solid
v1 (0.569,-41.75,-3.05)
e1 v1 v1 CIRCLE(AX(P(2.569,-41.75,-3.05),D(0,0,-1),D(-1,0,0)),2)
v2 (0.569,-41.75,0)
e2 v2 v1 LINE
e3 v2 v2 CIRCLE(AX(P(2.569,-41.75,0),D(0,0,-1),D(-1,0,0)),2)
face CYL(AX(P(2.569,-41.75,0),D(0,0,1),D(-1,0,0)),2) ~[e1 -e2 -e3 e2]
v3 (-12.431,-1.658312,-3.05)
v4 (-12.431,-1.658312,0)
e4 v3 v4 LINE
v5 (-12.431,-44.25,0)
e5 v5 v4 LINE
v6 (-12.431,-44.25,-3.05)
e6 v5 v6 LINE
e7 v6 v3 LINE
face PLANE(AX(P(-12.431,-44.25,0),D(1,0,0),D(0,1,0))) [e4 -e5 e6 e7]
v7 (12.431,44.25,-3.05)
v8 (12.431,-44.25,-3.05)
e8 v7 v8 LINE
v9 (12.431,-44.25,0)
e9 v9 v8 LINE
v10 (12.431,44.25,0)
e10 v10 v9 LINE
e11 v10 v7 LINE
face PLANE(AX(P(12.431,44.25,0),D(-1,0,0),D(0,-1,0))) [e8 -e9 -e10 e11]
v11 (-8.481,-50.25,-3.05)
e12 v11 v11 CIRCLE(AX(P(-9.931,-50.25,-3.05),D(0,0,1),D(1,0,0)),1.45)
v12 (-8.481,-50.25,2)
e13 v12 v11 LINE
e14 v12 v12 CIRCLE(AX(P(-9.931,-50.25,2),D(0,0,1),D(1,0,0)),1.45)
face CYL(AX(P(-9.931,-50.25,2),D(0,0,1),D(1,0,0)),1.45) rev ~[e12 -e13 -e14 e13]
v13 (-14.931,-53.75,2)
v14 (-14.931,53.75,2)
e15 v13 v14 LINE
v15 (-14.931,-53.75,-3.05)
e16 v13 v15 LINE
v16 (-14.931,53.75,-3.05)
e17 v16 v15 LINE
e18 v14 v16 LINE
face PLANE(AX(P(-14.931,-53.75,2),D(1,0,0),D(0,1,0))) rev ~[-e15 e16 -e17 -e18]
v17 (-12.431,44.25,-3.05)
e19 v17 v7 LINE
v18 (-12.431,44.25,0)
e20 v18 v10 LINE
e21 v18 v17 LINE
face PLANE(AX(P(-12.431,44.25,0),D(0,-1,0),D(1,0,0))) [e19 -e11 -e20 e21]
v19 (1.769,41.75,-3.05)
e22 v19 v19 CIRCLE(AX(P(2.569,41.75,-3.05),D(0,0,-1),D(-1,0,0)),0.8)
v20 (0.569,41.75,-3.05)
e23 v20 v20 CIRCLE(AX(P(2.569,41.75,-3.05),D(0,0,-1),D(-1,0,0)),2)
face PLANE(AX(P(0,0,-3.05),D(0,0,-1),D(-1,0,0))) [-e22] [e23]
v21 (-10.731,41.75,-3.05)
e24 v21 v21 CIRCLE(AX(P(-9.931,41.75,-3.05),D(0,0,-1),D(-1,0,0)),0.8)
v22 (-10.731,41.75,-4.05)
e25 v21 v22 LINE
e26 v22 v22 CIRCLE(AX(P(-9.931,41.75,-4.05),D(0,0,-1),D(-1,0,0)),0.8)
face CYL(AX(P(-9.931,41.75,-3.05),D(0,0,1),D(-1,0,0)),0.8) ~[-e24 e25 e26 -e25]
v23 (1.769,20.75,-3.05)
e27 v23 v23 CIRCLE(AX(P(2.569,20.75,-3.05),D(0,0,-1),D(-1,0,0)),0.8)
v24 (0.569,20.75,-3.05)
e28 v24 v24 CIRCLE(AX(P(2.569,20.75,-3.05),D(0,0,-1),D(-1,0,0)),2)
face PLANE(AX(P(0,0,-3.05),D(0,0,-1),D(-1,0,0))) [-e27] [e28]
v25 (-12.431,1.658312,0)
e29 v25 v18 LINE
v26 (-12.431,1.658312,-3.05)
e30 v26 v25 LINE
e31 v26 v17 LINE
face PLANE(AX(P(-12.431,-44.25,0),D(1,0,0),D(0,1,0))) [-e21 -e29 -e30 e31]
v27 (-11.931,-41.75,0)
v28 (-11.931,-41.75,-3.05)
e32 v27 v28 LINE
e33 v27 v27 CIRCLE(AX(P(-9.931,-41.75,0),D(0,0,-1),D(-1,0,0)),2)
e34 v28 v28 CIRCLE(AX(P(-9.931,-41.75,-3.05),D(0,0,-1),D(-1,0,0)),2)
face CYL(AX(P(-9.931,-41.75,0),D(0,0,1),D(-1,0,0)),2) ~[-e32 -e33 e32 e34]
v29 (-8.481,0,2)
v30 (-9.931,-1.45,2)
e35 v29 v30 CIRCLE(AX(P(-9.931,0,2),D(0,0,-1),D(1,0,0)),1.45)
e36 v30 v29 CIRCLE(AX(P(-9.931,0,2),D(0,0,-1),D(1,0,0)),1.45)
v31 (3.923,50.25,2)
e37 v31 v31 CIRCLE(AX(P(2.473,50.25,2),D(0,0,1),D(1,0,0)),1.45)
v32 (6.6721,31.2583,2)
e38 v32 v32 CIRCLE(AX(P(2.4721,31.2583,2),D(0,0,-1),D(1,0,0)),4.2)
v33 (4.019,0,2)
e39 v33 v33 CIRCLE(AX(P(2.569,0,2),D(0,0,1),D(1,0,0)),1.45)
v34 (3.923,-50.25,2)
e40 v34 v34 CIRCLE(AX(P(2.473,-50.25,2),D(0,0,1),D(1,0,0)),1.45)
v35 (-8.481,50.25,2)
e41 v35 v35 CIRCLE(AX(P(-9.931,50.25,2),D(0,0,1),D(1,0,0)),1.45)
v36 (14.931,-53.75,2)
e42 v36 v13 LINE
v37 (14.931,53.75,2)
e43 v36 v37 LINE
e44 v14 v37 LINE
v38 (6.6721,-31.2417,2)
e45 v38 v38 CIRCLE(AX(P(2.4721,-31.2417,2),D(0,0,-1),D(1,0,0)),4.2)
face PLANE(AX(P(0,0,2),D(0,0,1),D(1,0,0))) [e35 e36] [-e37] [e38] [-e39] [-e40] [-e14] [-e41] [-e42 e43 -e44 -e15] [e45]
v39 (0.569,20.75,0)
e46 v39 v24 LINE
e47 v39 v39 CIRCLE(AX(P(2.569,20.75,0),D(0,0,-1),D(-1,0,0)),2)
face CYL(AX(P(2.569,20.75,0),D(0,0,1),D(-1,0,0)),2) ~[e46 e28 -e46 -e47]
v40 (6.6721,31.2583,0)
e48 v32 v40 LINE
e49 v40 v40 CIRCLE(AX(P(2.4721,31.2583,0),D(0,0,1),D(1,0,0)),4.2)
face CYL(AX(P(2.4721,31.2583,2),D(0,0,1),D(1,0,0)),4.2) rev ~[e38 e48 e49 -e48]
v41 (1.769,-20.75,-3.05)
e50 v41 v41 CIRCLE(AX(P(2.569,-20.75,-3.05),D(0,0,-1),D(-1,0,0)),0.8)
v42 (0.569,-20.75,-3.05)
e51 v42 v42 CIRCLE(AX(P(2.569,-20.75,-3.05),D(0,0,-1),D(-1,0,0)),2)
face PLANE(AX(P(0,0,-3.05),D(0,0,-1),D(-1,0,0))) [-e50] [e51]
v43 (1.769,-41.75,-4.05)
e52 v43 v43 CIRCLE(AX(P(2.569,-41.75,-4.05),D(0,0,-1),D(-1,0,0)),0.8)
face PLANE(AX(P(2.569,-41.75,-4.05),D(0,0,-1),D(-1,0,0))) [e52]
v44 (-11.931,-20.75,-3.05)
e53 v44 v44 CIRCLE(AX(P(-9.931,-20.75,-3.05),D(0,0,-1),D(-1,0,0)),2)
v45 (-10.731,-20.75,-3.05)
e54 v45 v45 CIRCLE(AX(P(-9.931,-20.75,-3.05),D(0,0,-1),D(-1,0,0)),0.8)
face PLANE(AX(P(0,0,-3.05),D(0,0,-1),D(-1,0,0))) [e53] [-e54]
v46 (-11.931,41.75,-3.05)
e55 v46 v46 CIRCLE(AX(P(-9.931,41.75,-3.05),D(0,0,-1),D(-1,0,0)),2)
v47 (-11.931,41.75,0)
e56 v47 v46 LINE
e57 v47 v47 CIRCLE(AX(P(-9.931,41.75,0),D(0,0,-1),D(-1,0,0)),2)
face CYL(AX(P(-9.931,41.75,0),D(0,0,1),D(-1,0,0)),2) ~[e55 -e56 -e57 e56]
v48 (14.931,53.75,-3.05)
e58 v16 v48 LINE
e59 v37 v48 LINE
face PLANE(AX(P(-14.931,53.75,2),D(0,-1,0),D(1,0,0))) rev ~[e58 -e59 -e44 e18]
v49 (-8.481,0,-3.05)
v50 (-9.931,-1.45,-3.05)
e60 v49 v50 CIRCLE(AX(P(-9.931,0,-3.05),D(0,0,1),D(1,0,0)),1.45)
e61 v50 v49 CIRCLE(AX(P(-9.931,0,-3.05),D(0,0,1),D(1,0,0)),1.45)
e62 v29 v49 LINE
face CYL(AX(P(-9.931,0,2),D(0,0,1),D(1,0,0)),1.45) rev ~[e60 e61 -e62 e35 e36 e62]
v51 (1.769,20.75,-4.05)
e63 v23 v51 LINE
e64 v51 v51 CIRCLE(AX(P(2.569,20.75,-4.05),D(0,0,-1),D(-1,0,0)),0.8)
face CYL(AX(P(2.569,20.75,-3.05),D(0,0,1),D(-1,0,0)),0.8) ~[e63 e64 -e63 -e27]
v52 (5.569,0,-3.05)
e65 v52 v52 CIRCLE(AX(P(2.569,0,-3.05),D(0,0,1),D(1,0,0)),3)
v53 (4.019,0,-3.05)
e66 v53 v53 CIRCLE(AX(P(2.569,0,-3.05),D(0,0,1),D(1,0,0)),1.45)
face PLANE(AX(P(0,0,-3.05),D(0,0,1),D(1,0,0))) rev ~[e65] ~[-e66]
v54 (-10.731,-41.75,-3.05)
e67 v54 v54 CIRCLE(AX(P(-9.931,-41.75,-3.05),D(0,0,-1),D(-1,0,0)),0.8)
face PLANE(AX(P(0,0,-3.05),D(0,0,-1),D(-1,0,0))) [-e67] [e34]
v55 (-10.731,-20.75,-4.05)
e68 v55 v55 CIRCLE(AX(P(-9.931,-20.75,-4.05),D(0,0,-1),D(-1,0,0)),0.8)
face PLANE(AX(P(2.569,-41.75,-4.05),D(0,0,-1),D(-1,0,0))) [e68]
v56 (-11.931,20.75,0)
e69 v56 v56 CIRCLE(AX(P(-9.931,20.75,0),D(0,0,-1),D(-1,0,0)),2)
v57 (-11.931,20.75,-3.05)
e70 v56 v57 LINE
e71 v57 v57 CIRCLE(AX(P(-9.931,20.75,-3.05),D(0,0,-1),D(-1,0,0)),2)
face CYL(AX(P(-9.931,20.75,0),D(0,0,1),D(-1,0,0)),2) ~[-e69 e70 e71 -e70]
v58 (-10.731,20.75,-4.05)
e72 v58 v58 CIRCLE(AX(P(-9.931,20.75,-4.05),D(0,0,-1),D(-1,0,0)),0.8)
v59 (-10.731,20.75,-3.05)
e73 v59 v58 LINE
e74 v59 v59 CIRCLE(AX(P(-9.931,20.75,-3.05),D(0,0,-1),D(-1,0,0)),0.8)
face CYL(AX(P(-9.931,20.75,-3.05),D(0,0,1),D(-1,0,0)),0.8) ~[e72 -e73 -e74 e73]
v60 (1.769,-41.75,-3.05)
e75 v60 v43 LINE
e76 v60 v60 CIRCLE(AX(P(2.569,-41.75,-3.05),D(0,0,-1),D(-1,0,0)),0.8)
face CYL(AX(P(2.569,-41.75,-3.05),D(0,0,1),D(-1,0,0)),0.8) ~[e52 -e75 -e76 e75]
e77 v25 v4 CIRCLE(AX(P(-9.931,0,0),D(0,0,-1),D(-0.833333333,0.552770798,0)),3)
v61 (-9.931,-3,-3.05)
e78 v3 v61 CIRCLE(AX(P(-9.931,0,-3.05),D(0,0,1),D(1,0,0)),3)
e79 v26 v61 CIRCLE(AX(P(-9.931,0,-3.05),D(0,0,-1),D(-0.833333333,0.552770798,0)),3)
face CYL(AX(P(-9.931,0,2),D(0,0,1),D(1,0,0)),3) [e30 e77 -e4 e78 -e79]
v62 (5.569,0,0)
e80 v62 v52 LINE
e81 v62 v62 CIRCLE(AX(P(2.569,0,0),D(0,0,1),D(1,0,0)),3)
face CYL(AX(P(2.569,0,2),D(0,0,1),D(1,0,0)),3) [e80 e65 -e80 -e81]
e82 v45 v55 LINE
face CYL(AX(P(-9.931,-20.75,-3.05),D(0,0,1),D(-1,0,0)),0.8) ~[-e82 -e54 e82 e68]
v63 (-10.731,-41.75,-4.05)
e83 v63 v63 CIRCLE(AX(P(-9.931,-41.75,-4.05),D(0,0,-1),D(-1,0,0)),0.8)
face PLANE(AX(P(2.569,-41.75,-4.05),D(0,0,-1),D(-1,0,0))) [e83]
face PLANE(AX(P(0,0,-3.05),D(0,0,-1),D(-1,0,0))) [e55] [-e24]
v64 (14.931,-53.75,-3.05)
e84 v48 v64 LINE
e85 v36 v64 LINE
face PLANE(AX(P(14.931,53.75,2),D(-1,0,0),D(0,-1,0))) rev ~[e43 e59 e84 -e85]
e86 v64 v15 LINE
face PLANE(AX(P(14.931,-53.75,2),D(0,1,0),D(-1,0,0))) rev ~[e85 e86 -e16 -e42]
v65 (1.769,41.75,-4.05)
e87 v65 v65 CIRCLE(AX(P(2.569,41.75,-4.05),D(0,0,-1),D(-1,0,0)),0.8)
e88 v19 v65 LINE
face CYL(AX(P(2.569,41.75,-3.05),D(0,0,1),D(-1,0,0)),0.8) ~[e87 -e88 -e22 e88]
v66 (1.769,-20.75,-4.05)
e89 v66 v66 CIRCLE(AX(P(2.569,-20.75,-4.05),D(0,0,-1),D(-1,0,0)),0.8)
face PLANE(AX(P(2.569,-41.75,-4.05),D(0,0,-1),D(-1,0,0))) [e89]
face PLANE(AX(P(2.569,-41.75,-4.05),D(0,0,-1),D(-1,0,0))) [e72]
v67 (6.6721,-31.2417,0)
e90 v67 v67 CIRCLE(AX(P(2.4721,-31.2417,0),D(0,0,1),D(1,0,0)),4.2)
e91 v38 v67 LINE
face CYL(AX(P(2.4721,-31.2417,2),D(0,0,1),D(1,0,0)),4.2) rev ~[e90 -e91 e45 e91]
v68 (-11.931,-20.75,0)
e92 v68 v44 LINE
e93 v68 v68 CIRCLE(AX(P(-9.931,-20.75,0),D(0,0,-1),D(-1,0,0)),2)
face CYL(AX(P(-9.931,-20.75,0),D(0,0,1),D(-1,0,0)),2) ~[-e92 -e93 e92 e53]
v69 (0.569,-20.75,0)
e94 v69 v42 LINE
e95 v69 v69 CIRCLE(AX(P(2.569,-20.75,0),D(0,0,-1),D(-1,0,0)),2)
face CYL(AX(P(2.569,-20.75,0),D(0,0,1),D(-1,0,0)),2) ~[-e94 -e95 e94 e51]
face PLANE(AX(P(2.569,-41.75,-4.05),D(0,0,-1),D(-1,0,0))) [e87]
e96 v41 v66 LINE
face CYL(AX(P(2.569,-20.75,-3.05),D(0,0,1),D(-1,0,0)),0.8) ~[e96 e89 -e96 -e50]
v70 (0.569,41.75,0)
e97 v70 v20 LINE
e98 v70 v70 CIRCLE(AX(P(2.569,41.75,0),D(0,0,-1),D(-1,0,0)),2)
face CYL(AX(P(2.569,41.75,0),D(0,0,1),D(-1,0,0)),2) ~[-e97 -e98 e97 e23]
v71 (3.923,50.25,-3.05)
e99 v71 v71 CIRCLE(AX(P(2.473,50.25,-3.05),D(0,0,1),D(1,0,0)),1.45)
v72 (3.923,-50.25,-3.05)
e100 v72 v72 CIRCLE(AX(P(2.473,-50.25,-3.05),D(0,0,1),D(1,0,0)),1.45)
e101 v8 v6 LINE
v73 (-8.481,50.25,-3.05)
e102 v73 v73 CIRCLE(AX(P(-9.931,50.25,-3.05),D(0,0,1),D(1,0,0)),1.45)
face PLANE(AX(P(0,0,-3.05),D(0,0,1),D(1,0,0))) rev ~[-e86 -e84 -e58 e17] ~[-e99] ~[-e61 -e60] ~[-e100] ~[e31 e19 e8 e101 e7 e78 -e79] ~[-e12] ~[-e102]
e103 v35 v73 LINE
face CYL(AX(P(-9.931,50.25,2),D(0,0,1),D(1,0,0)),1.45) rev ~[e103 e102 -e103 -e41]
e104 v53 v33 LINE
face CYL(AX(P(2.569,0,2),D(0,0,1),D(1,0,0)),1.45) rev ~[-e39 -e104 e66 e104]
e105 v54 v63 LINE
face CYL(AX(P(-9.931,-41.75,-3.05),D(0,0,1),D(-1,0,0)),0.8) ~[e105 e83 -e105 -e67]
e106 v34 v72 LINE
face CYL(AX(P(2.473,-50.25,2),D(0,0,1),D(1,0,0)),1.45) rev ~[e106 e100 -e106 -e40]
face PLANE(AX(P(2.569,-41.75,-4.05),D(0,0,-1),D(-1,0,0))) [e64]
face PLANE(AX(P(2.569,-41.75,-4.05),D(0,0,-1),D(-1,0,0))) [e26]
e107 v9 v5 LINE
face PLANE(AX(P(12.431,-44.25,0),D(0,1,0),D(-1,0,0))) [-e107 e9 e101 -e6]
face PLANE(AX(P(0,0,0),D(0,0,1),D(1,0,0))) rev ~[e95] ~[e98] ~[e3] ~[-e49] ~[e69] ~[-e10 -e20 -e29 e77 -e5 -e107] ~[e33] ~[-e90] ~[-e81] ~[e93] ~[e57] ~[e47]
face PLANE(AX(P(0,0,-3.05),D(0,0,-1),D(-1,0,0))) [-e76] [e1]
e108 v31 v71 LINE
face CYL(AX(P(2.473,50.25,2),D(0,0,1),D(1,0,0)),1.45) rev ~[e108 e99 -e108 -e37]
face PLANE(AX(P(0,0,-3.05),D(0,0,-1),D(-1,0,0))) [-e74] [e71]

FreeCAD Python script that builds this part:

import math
import FreeCAD as App
import Part
import Sketcher

V = App.Vector
Q = App.Units.Quantity

doc = App.newDocument("Part")
body = doc.addObject("PartDesign::Body", "Body")

# Sketch on XY plane
sketch1 = doc.addObject("Sketcher::SketchObject", "Sketch")
body.addObject(sketch1)
sketch1.AttachmentSupport = (doc.XY_Plane, [""])
sketch1.MapMode = "FlatFace"
sketch1.addGeometry([
    Part.LineSegment(V(14.9, 46.8, 0), V(-14.9, 46.8, 0)),  # 0
    Part.LineSegment(V(-14.9, 46.8, 0), V(-14.9, -46.8, 0)),  # 1
    Part.LineSegment(V(-14.9, -46.8, 0), V(14.9, -46.8, 0)),  # 2
    Part.LineSegment(V(14.9, -46.8, 0), V(14.9, 46.8, 0)),  # 3
    Part.Circle(V(-9.9, -41.8, 0), V(0, 0, 1), 1.1),  # 4
    Part.Circle(V(-9.9, -20.8, 0), V(0, 0, 1), 1.1),  # 5
    Part.Circle(V(2.6, -41.8, 0), V(0, 0, 1), 1.1),  # 6
    Part.LineSegment(V(-1.5, -27.2, 0), V(6.5, -27.2, 0)),  # 7
    Part.LineSegment(V(6.5, -27.2, 0), V(6.5, -35.2, 0)),  # 8
    Part.LineSegment(V(6.5, -35.2, 0), V(-1.5, -35.2, 0)),  # 9
    Part.LineSegment(V(-1.5, -35.2, 0), V(-1.5, -27.2, 0)),  # 10
    Part.Circle(V(2.6, -20.8, 0), V(0, 0, 1), 1.1),  # 11
    Part.Circle(V(-9.9, 20.8, 0), V(0, 0, 1), 1.1),  # 12
    Part.Circle(V(-9.9, 41.8, 0), V(0, 0, 1), 1.1),  # 13
    Part.Circle(V(2.6, 20.8, 0), V(0, 0, 1), 1.1),  # 14
    Part.LineSegment(V(-1.5, 35.3, 0), V(6.5, 35.3, 0)),  # 15
    Part.LineSegment(V(6.5, 35.3, 0), V(6.5, 27.3, 0)),  # 16
    Part.LineSegment(V(6.5, 27.3, 0), V(-1.5, 27.3, 0)),  # 17
    Part.LineSegment(V(-1.5, 27.3, 0), V(-1.5, 35.3, 0)),  # 18
    Part.Circle(V(2.6, 41.8, 0), V(0, 0, 1), 1.1),  # 19
], False)
sketch1.addConstraint([
    Sketcher.Constraint("Coincident", 0, 2, 1, 1),
    Sketcher.Constraint("Coincident", 1, 2, 2, 1),
    Sketcher.Constraint("Coincident", 2, 2, 3, 1),
    Sketcher.Constraint("Coincident", 3, 2, 0, 1),
    Sketcher.Constraint("Coincident", 7, 2, 8, 1),
    Sketcher.Constraint("Coincident", 8, 2, 9, 1),
    Sketcher.Constraint("Coincident", 9, 2, 10, 1),
    Sketcher.Constraint("Coincident", 10, 2, 7, 1),
    Sketcher.Constraint("Coincident", 15, 2, 16, 1),
    Sketcher.Constraint("Coincident", 16, 2, 17, 1),
    Sketcher.Constraint("Coincident", 17, 2, 18, 1),
    Sketcher.Constraint("Coincident", 18, 2, 15, 1),
    Sketcher.Constraint("Horizontal", 0),
    Sketcher.Constraint("Vertical", 1),
    Sketcher.Constraint("Horizontal", 2),
    Sketcher.Constraint("Vertical", 3),
    Sketcher.Constraint("Horizontal", 7),
    Sketcher.Constraint("Vertical", 8),
    Sketcher.Constraint("Horizontal", 9),
    Sketcher.Constraint("Vertical", 10),
    Sketcher.Constraint("Horizontal", 15),
    Sketcher.Constraint("Vertical", 16),
    Sketcher.Constraint("Horizontal", 17),
    Sketcher.Constraint("Vertical", 18),
    Sketcher.Constraint("Equal", 4, 5),
    Sketcher.Constraint("Equal", 5, 6),
    Sketcher.Constraint("Equal", 6, 11),
    Sketcher.Constraint("Equal", 11, 12),
    Sketcher.Constraint("Equal", 12, 13),
    Sketcher.Constraint("Equal", 13, 14),
    Sketcher.Constraint("Equal", 14, 19),
    Sketcher.Constraint("Symmetric", 0, 2, 2, 2, -1, 1),
    Sketcher.Constraint("Symmetric", 5, 3, 12, 3, -1),
    Sketcher.Constraint("Symmetric", 4, 3, 13, 3, -1),
    Sketcher.Constraint("Symmetric", 11, 3, 14, 3, -1),
    Sketcher.Constraint("Symmetric", 6, 3, 19, 3, -1),
    Sketcher.Constraint("Horizontal", 4, 3, 6, 3),
    Sketcher.Constraint("Horizontal", 5, 3, 11, 3),
    Sketcher.Constraint("Vertical", 4, 3, 5, 3),
    Sketcher.Constraint("Vertical", 6, 3, 11, 3),
    Sketcher.Constraint("Vertical", 8, 2, 15, 2),
    Sketcher.Constraint("Vertical", 10, 2, 17, 2),
    Sketcher.Constraint("Equal", 17, 8),
    Sketcher.Constraint("Equal", 10, 16),
    Sketcher.Constraint("Diameter", 4, Q("2.2 mm")),
    Sketcher.Constraint("DistanceX", 7, 1, 7, 2, Q("8 mm")),
    Sketcher.Constraint("DistanceY", 1, 2, 1, 1, Q("93.5 mm")),
    Sketcher.Constraint("DistanceY", 4, 3, 5, 3, Q("21 mm")),
    Sketcher.Constraint("DistanceX", 0, 2, 13, 3, Q("5 mm")),
    Sketcher.Constraint("DistanceY", 13, 3, 0, 2, Q("5 mm")),
    Sketcher.Constraint("DistanceX", 4, 3, 6, 3, Q("12.5 mm")),
    Sketcher.Constraint("DistanceX", 0, 2, 0, 1, Q("29.862 mm")),
    Sketcher.Constraint("DistanceX", -1, 1, 7, 2, Q("6.472 mm")),
    Sketcher.Constraint("DistanceY", 7, 2, -1, 1, Q("27.2417 mm")),
    Sketcher.Constraint("DistanceY", -1, 1, 15, 2, Q("35.2583 mm")),
])
pad1 = doc.addObject("PartDesign::Pad", "Pad")
body.addObject(pad1)
pad1.Profile = sketch1
pad1.Length = 2

# Sketch on XY plane
sketch2 = doc.addObject("Sketcher::SketchObject", "Sketch001")
body.addObject(sketch2)
sketch2.AttachmentSupport = (doc.XY_Plane, [""])
sketch2.MapMode = "FlatFace"
sketch2.AttachmentOffset = App.Placement(V(0, 0, 2), App.Rotation())
sketch2.addGeometry([
    Part.LineSegment(V(6.67, 27.06, 0), V(6.67, 27.26, 0)),  # 0
    Part.LineSegment(V(6.67, 27.26, 0), V(6.67, 35.46, 0)),  # 1
    Part.LineSegment(V(6.67, 35.46, 0), V(-1.73, 35.46, 0)),  # 2
    Part.LineSegment(V(-1.73, 35.46, 0), V(-1.73, 27.06, 0)),  # 3
    Part.LineSegment(V(-1.73, 27.06, 0), V(6.67, 27.06, 0)),  # 4
    Part.LineSegment(V(6.47, 27.26, 0), V(-1.53, 27.26, 0)),  # 5
    Part.LineSegment(V(-1.53, 27.26, 0), V(-1.53, 35.26, 0)),  # 6
    Part.LineSegment(V(-1.53, 35.26, 0), V(6.47, 35.26, 0)),  # 7
    Part.LineSegment(V(6.47, 35.26, 0), V(6.47, 27.26, 0)),  # 8
    Part.LineSegment(V(-1.73, -35.44, 0), V(-1.53, -35.44, 0)),  # 9
    Part.LineSegment(V(-1.53, -35.44, 0), V(6.67, -35.44, 0)),  # 10
    Part.LineSegment(V(6.67, -35.44, 0), V(6.67, -27.04, 0)),  # 11
    Part.LineSegment(V(6.67, -27.04, 0), V(-1.73, -27.04, 0)),  # 12
    Part.LineSegment(V(-1.73, -27.04, 0), V(-1.73, -35.44, 0)),  # 13
    Part.LineSegment(V(-1.53, -35.24, 0), V(-1.53, -27.24, 0)),  # 14
    Part.LineSegment(V(-1.53, -27.24, 0), V(6.47, -27.24, 0)),  # 15
    Part.LineSegment(V(6.47, -27.24, 0), V(6.47, -35.24, 0)),  # 16
    Part.LineSegment(V(6.47, -35.24, 0), V(-1.53, -35.24, 0)),  # 17
], False)
sketch2.addConstraint([
    Sketcher.Constraint("Coincident", 0, 2, 1, 1),
    Sketcher.Constraint("Coincident", 1, 2, 2, 1),
    Sketcher.Constraint("Coincident", 2, 2, 3, 1),
    Sketcher.Constraint("Coincident", 3, 2, 4, 1),
    Sketcher.Constraint("Coincident", 4, 2, 0, 1),
    Sketcher.Constraint("Coincident", 5, 2, 6, 1),
    Sketcher.Constraint("Coincident", 6, 2, 7, 1),
    Sketcher.Constraint("Coincident", 7, 2, 8, 1),
    Sketcher.Constraint("Coincident", 8, 2, 5, 1),
    Sketcher.Constraint("Coincident", 9, 2, 10, 1),
    Sketcher.Constraint("Coincident", 10, 2, 11, 1),
    Sketcher.Constraint("Coincident", 11, 2, 12, 1),
    Sketcher.Constraint("Coincident", 12, 2, 13, 1),
    Sketcher.Constraint("Coincident", 13, 2, 9, 1),
    Sketcher.Constraint("Coincident", 14, 2, 15, 1),
    Sketcher.Constraint("Coincident", 15, 2, 16, 1),
    Sketcher.Constraint("Coincident", 16, 2, 17, 1),
    Sketcher.Constraint("Coincident", 17, 2, 14, 1),
    Sketcher.Constraint("Vertical", 0),
    Sketcher.Constraint("Vertical", 1),
    Sketcher.Constraint("Horizontal", 2),
    Sketcher.Constraint("Vertical", 3),
    Sketcher.Constraint("Horizontal", 4),
    Sketcher.Constraint("Horizontal", 5),
    Sketcher.Constraint("Vertical", 6),
    Sketcher.Constraint("Horizontal", 7),
    Sketcher.Constraint("Vertical", 8),
    Sketcher.Constraint("Horizontal", 9),
    Sketcher.Constraint("Horizontal", 10),
    Sketcher.Constraint("Vertical", 11),
    Sketcher.Constraint("Horizontal", 12),
    Sketcher.Constraint("Vertical", 13),
    Sketcher.Constraint("Vertical", 14),
    Sketcher.Constraint("Horizontal", 15),
    Sketcher.Constraint("Vertical", 16),
    Sketcher.Constraint("Horizontal", 17),
    Sketcher.Constraint("Horizontal", 0, 2, 5, 2),
    Sketcher.Constraint("Vertical", 6, 2, 9, 2),
    Sketcher.Constraint("Vertical", 4, 2, 10, 2),
    Sketcher.Constraint("Vertical", 3, 2, 12, 2),
    Sketcher.Constraint("Vertical", 9, 2, 14, 2),
    Sketcher.Constraint("Vertical", 8, 2, 15, 2),
    Sketcher.Constraint("Equal", 9, 0),
    Sketcher.Constraint("Equal", 10, 1),
    Sketcher.Constraint("Equal", 17, 6),
    Sketcher.Constraint("Equal", 3, 11),
    Sketcher.Constraint("Equal", 8, 14),
    Sketcher.Constraint("DistanceX", 9, 1, 9, 2, Q("0.2 mm")),
    Sketcher.Constraint("DistanceY", 6, 2, 2, 2, Q("0.2 mm")),
    Sketcher.Constraint("DistanceY", 14, 2, 12, 2, Q("0.2 mm")),
    Sketcher.Constraint("DistanceX", 5, 2, 5, 1, Q("8 mm")),
    Sketcher.Constraint("DistanceY", 9, 2, 3, 2, Q("62.5 mm")),
    Sketcher.Constraint("DistanceX", -1, 1, 0, 2, Q("6.672 mm")),
    Sketcher.Constraint("DistanceY", -1, 1, 0, 2, Q("27.2583 mm")),
])
pocket1 = doc.addObject("PartDesign::Pocket", "Pocket")
body.addObject(pocket1)
pocket1.Profile = sketch2
pocket1.Type = "ThroughAll"

# Sketch on XY plane
sketch3 = doc.addObject("Sketcher::SketchObject", "Sketch002")
body.addObject(sketch3)
sketch3.AttachmentSupport = (doc.XY_Plane, [""])
sketch3.MapMode = "FlatFace"
sketch3.addGeometry([
    Part.LineSegment(V(-15, -47, 0), V(-15, 47, 0)),  # 0
    Part.LineSegment(V(-15, 47, 0), V(15, 47, 0)),  # 1
    Part.LineSegment(V(15, 47, 0), V(15, -47, 0)),  # 2
    Part.LineSegment(V(15, -47, 0), V(-15, -47, 0)),  # 3
    Part.LineSegment(V(12, 44, 0), V(-12, 44, 0)),  # 4
    Part.LineSegment(V(-12, 44, 0), V(-12, -44, 0)),  # 5
    Part.LineSegment(V(-12, -44, 0), V(12, -44, 0)),  # 6
    Part.LineSegment(V(12, -44, 0), V(12, 44, 0)),  # 7
], False)
sketch3.addConstraint([
    Sketcher.Constraint("Coincident", 0, 2, 1, 1),
    Sketcher.Constraint("Coincident", 1, 2, 2, 1),
    Sketcher.Constraint("Coincident", 2, 2, 3, 1),
    Sketcher.Constraint("Coincident", 3, 2, 0, 1),
    Sketcher.Constraint("Coincident", 4, 2, 5, 1),
    Sketcher.Constraint("Coincident", 5, 2, 6, 1),
    Sketcher.Constraint("Coincident", 6, 2, 7, 1),
    Sketcher.Constraint("Coincident", 7, 2, 4, 1),
    Sketcher.Constraint("Vertical", 0),
    Sketcher.Constraint("Horizontal", 1),
    Sketcher.Constraint("Vertical", 2),
    Sketcher.Constraint("Horizontal", 3),
    Sketcher.Constraint("Horizontal", 4),
    Sketcher.Constraint("Vertical", 5),
    Sketcher.Constraint("Horizontal", 6),
    Sketcher.Constraint("Vertical", 7),
    Sketcher.Constraint("Symmetric", 0, 2, 2, 2, -1, 1),
    Sketcher.Constraint("Symmetric", 4, 2, 6, 2, -1, 1),
    Sketcher.Constraint("DistanceY", 0, 1, 0, 2, Q("93.5 mm")),
    Sketcher.Constraint("DistanceY", 5, 2, 5, 1, Q("88.5 mm")),
    Sketcher.Constraint("DistanceX", 0, 2, 4, 2, Q("2.5 mm")),
    Sketcher.Constraint("DistanceX", 1, 1, 1, 2, Q("29.862 mm")),
])
pad2 = doc.addObject("PartDesign::Pad", "Pad001")
body.addObject(pad2)
pad2.Profile = sketch3
pad2.Length = 3.05
pad2.Reversed = True

# Sketch on XY plane
sketch4 = doc.addObject("Sketcher::SketchObject", "Sketch003")
body.addObject(sketch4)
sketch4.AttachmentSupport = (doc.XY_Plane, [""])
sketch4.MapMode = "FlatFace"
sketch4.AttachmentOffset = App.Placement(V(0, 0, 2), App.Rotation())
sketch4.addGeometry([
    Part.LineSegment(V(2.5, -35.4, 0), V(6.7, -35.4, 0)),  # 0
    Part.LineSegment(V(6.7, -35.4, 0), V(6.7, -31.2, 0)),  # 1
    Part.ArcOfCircle(Part.Circle(V(2.5, -31.2, 0), V(0, 0, 1), 4.2), math.radians(-90), math.radians(0)),  # 2
    Part.LineSegment(V(-1.7, -35.4, 0), V(2.5, -35.4, 0)),  # 3
    Part.ArcOfCircle(Part.Circle(V(2.5, -31.2, 0), V(0, 0, 1), 4.2), math.radians(180), math.radians(270)),  # 4
    Part.LineSegment(V(-1.7, -31.2, 0), V(-1.7, -35.4, 0)),  # 5
    Part.ArcOfCircle(Part.Circle(V(2.5, -31.2, 0), V(0, 0, 1), 4.2), math.radians(0), math.radians(90)),  # 6
    Part.LineSegment(V(6.7, -31.2, 0), V(6.7, -27, 0)),  # 7
    Part.LineSegment(V(6.7, -27, 0), V(2.5, -27, 0)),  # 8
    Part.LineSegment(V(-1.7, -27, 0), V(-1.7, -31.2, 0)),  # 9
    Part.ArcOfCircle(Part.Circle(V(2.5, -31.2, 0), V(0, 0, 1), 4.2), math.radians(90), math.radians(180)),  # 10
    Part.LineSegment(V(2.5, -27, 0), V(-1.7, -27, 0)),  # 11
    Part.LineSegment(V(-1.7, 31.3, 0), V(-1.7, 27.1, 0)),  # 12
    Part.LineSegment(V(-1.7, 27.1, 0), V(2.5, 27.1, 0)),  # 13
    Part.ArcOfCircle(Part.Circle(V(2.5, 31.3, 0), V(0, 0, 1), 4.2), math.radians(180), math.radians(270)),  # 14
    Part.LineSegment(V(-1.7, 35.5, 0), V(-1.7, 31.3, 0)),  # 15
    Part.ArcOfCircle(Part.Circle(V(2.5, 31.3, 0), V(0, 0, 1), 4.2), math.radians(90), math.radians(180)),  # 16
    Part.LineSegment(V(2.5, 35.5, 0), V(-1.7, 35.5, 0)),  # 17
    Part.ArcOfCircle(Part.Circle(V(2.5, 31.3, 0), V(0, 0, 1), 4.2), math.radians(-90), math.radians(0)),  # 18
    Part.LineSegment(V(2.5, 27.1, 0), V(6.7, 27.1, 0)),  # 19
    Part.LineSegment(V(6.7, 27.1, 0), V(6.7, 31.3, 0)),  # 20
    Part.LineSegment(V(6.7, 35.5, 0), V(2.5, 35.5, 0)),  # 21
    Part.ArcOfCircle(Part.Circle(V(2.5, 31.3, 0), V(0, 0, 1), 4.2), math.radians(0), math.radians(90)),  # 22
    Part.LineSegment(V(6.7, 31.3, 0), V(6.7, 35.5, 0)),  # 23
], False)
sketch4.addConstraint([
    Sketcher.Constraint("Coincident", 0, 2, 1, 1),
    Sketcher.Constraint("Tangent", 1, 2, 2, 2),
    Sketcher.Constraint("Tangent", 2, 1, 0, 1),
    Sketcher.Constraint("Tangent", 3, 2, 4, 2),
    Sketcher.Constraint("Tangent", 4, 1, 5, 1),
    Sketcher.Constraint("Coincident", 5, 2, 3, 1),
    Sketcher.Constraint("Tangent", 6, 1, 7, 1),
    Sketcher.Constraint("Coincident", 7, 2, 8, 1),
    Sketcher.Constraint("Tangent", 8, 2, 6, 2),
    Sketcher.Constraint("Tangent", 9, 2, 10, 2),
    Sketcher.Constraint("Tangent", 10, 1, 11, 1),
    Sketcher.Constraint("Coincident", 11, 2, 9, 1),
    Sketcher.Constraint("Coincident", 12, 2, 13, 1),
    Sketcher.Constraint("Tangent", 13, 2, 14, 2),
    Sketcher.Constraint("Tangent", 14, 1, 12, 1),
    Sketcher.Constraint("Tangent", 15, 2, 16, 2),
    Sketcher.Constraint("Tangent", 16, 1, 17, 1),
    Sketcher.Constraint("Coincident", 17, 2, 15, 1),
    Sketcher.Constraint("Tangent", 18, 1, 19, 1),
    Sketcher.Constraint("Coincident", 19, 2, 20, 1),
    Sketcher.Constraint("Tangent", 20, 2, 18, 2),
    Sketcher.Constraint("Tangent", 21, 2, 22, 2),
    Sketcher.Constraint("Tangent", 22, 1, 23, 1),
    Sketcher.Constraint("Coincident", 23, 2, 21, 1),
    Sketcher.Constraint("Horizontal", 0),
    Sketcher.Constraint("Vertical", 1),
    Sketcher.Constraint("Horizontal", 3),
    Sketcher.Constraint("Vertical", 5),
    Sketcher.Constraint("Vertical", 7),
    Sketcher.Constraint("Horizontal", 8),
    Sketcher.Constraint("Vertical", 9),
    Sketcher.Constraint("Horizontal", 11),
    Sketcher.Constraint("Vertical", 12),
    Sketcher.Constraint("Horizontal", 13),
    Sketcher.Constraint("Vertical", 15),
    Sketcher.Constraint("Horizontal", 17),
    Sketcher.Constraint("Horizontal", 19),
    Sketcher.Constraint("Vertical", 20),
    Sketcher.Constraint("Horizontal", 21),
    Sketcher.Constraint("Vertical", 23),
    Sketcher.Constraint("Coincident", 4, 3, 2, 3),
    Sketcher.Constraint("Coincident", 6, 3, 2, 3),
    Sketcher.Constraint("Coincident", 10, 3, 2, 3),
    Sketcher.Constraint("Coincident", 16, 3, 14, 3),
    Sketcher.Constraint("Coincident", 18, 3, 14, 3),
    Sketcher.Constraint("Coincident", 22, 3, 14, 3),
    Sketcher.Constraint("Equal", 2, 4),
    Sketcher.Constraint("Equal", 4, 6),
    Sketcher.Constraint("Equal", 6, 10),
    Sketcher.Constraint("Equal", 10, 14),
    Sketcher.Constraint("Equal", 14, 16),
    Sketcher.Constraint("Equal", 16, 18),
    Sketcher.Constraint("Equal", 18, 22),
    Sketcher.Constraint("Vertical", 10, 3, 14, 3),
    Sketcher.Constraint("Radius", 2, Q("4.2 mm")),
    Sketcher.Constraint("DistanceY", 2, 3, 14, 3, Q("62.5 mm")),
    Sketcher.Constraint("DistanceX", -1, 1, 2, 3, Q("2.472 mm")),
    Sketcher.Constraint("DistanceY", 2, 3, -1, 1, Q("31.2417 mm")),
])
pad3 = doc.addObject("PartDesign::Pad", "Pad002")
body.addObject(pad3)
pad3.Profile = sketch4
pad3.Length = 2
pad3.Reversed = True

# Sketch on XY plane
sketch5 = doc.addObject("Sketcher::SketchObject", "Sketch004")
body.addObject(sketch5)
sketch5.AttachmentSupport = (doc.XY_Plane, [""])
sketch5.MapMode = "FlatFace"
sketch5.addGeometry([
    Part.Circle(V(-9.9, -20.8, 0), V(0, 0, 1), 2),  # 0
    Part.Circle(V(-9.9, -20.8, 0), V(0, 0, 1), 1.1),  # 1
    Part.Circle(V(-9.9, -41.8, 0), V(0, 0, 1), 2),  # 2
    Part.Circle(V(-9.9, -41.8, 0), V(0, 0, 1), 1.1),  # 3
    Part.Circle(V(2.6, -41.8, 0), V(0, 0, 1), 2),  # 4
    Part.Circle(V(2.6, -41.8, 0), V(0, 0, 1), 1.1),  # 5
    Part.Circle(V(2.6, -20.8, 0), V(0, 0, 1), 2),  # 6
    Part.Circle(V(2.6, -20.8, 0), V(0, 0, 1), 1.1),  # 7
    Part.Circle(V(-9.9, 20.8, 0), V(0, 0, 1), 2),  # 8
    Part.Circle(V(-9.9, 20.8, 0), V(0, 0, 1), 1.1),  # 9
    Part.Circle(V(2.6, 20.8, 0), V(0, 0, 1), 2),  # 10
    Part.Circle(V(2.6, 20.8, 0), V(0, 0, 1), 1.1),  # 11
    Part.Circle(V(-9.9, 41.8, 0), V(0, 0, 1), 2),  # 12
    Part.Circle(V(-9.9, 41.8, 0), V(0, 0, 1), 1.1),  # 13
    Part.Circle(V(2.6, 41.8, 0), V(0, 0, 1), 2),  # 14
    Part.Circle(V(2.6, 41.8, 0), V(0, 0, 1), 1.1),  # 15
], False)
sketch5.addConstraint([
    Sketcher.Constraint("Coincident", 1, 3, 0, 3),
    Sketcher.Constraint("Coincident", 3, 3, 2, 3),
    Sketcher.Constraint("Coincident", 5, 3, 4, 3),
    Sketcher.Constraint("Coincident", 7, 3, 6, 3),
    Sketcher.Constraint("Coincident", 9, 3, 8, 3),
    Sketcher.Constraint("Coincident", 11, 3, 10, 3),
    Sketcher.Constraint("Coincident", 13, 3, 12, 3),
    Sketcher.Constraint("Coincident", 15, 3, 14, 3),
    Sketcher.Constraint("Equal", 0, 2),
    Sketcher.Constraint("Equal", 1, 3),
    Sketcher.Constraint("Equal", 2, 4),
    Sketcher.Constraint("Equal", 3, 5),
    Sketcher.Constraint("Equal", 4, 6),
    Sketcher.Constraint("Equal", 5, 7),
    Sketcher.Constraint("Equal", 6, 8),
    Sketcher.Constraint("Equal", 7, 9),
    Sketcher.Constraint("Equal", 8, 10),
    Sketcher.Constraint("Equal", 9, 11),
    Sketcher.Constraint("Equal", 10, 12),
    Sketcher.Constraint("Equal", 11, 13),
    Sketcher.Constraint("Equal", 12, 14),
    Sketcher.Constraint("Equal", 13, 15),
    Sketcher.Constraint("Symmetric", 0, 3, 8, 3, -1),
    Sketcher.Constraint("Symmetric", 6, 3, 10, 3, -1),
    Sketcher.Constraint("Symmetric", 2, 3, 12, 3, -1),
    Sketcher.Constraint("Symmetric", 4, 3, 14, 3, -1),
    Sketcher.Constraint("Horizontal", 3, 3, 4, 3),
    Sketcher.Constraint("Horizontal", 1, 3, 6, 3),
    Sketcher.Constraint("Vertical", 1, 3, 2, 3),
    Sketcher.Constraint("Vertical", 5, 3, 6, 3),
    Sketcher.Constraint("Diameter", 0, Q("4 mm")),
    Sketcher.Constraint("Diameter", 1, Q("2.2 mm")),
    Sketcher.Constraint("DistanceY", 2, 3, 0, 3, Q("21 mm")),
    Sketcher.Constraint("DistanceX", 2, 3, 4, 3, Q("12.5 mm")),
    Sketcher.Constraint("DistanceY", 0, 3, 8, 3, Q("41.5 mm")),
    Sketcher.Constraint("DistanceX", 0, 3, -1, 1, Q("9.931 mm")),
])
pad4 = doc.addObject("PartDesign::Pad", "Pad003")
body.addObject(pad4)
pad4.Profile = sketch5
pad4.Length = 3.05
pad4.Reversed = True

# Sketch on XY plane
sketch6 = doc.addObject("Sketcher::SketchObject", "Sketch005")
body.addObject(sketch6)
sketch6.AttachmentSupport = (doc.XY_Plane, [""])
sketch6.MapMode = "FlatFace"
sketch6.AttachmentOffset = App.Placement(V(0, 0, 2), App.Rotation())
sketch6.addGeometry([
    Part.Circle(V(-9.9, 0, 0), V(0, 0, 1), 1.4),
    Part.Circle(V(2.6, 0, 0), V(0, 0, 1), 1.4),
], False)
sketch6.addConstraint([
    Sketcher.Constraint("Equal", 0, 1),
    Sketcher.Constraint("PointOnObject", 0, 3, -1),
    Sketcher.Constraint("PointOnObject", 1, 3, -1),
    Sketcher.Constraint("Diameter", 0, Q("2.9 mm")),
    Sketcher.Constraint("DistanceX", 0, 3, 1, 3, Q("12.5 mm")),
    Sketcher.Constraint("DistanceX", 0, 3, -1, 1, Q("9.931 mm")),
])
pocket2 = doc.addObject("PartDesign::Pocket", "Pocket001")
body.addObject(pocket2)
pocket2.Profile = sketch6
pocket2.Type = "ThroughAll"

# Sketch on XY plane
sketch7 = doc.addObject("Sketcher::SketchObject", "Sketch006")
body.addObject(sketch7)
sketch7.AttachmentSupport = (doc.XY_Plane, [""])
sketch7.MapMode = "FlatFace"
sketch7.AttachmentOffset = App.Placement(V(0, 0, 2), App.Rotation())
sketch7.addGeometry([
    Part.Circle(V(-9.9, 0, 0), V(0, 0, 1), 3),
    Part.Circle(V(-9.9, 0, 0), V(0, 0, 1), 1.4),
    Part.Circle(V(2.6, 0, 0), V(0, 0, 1), 3),
    Part.Circle(V(2.6, 0, 0), V(0, 0, 1), 1.4),
], False)
sketch7.addConstraint([
    Sketcher.Constraint("Coincident", 1, 3, 0, 3),
    Sketcher.Constraint("Coincident", 3, 3, 2, 3),
    Sketcher.Constraint("Equal", 0, 2),
    Sketcher.Constraint("Equal", 1, 3),
    Sketcher.Constraint("PointOnObject", 0, 3, -1),
    Sketcher.Constraint("PointOnObject", 2, 3, -1),
    Sketcher.Constraint("Diameter", 0, Q("6 mm")),
    Sketcher.Constraint("Diameter", 1, Q("2.9 mm")),
    Sketcher.Constraint("DistanceX", 0, 3, 2, 3, Q("12.5 mm")),
    Sketcher.Constraint("DistanceX", 0, 3, -1, 1, Q("9.931 mm")),
])
pad5 = doc.addObject("PartDesign::Pad", "Pad004")
body.addObject(pad5)
pad5.Profile = sketch7
pad5.Length = 5.05
pad5.Reversed = True

# Sketch on XY plane
sketch8 = doc.addObject("Sketcher::SketchObject", "Sketch007")
body.addObject(sketch8)
sketch8.AttachmentSupport = (doc.XY_Plane, [""])
sketch8.MapMode = "FlatFace"
sketch8.AttachmentOffset = App.Placement(V(0, 0, 2), App.Rotation())
sketch8.addGeometry([
    Part.Circle(V(2.6, 20.8, 0), V(0, 0, 1), 1.1),  # 0
    Part.Circle(V(-9.9, 20.8, 0), V(0, 0, 1), 1.1),  # 1
    Part.Circle(V(2.6, 41.8, 0), V(0, 0, 1), 1.1),  # 2
    Part.Circle(V(-9.9, 41.8, 0), V(0, 0, 1), 1.1),  # 3
    Part.Circle(V(2.6, -20.8, 0), V(0, 0, 1), 1.1),  # 4
    Part.Circle(V(2.6, -41.8, 0), V(0, 0, 1), 1.1),  # 5
    Part.Circle(V(-9.9, -41.8, 0), V(0, 0, 1), 1.1),  # 6
    Part.Circle(V(-9.9, -20.8, 0), V(0, 0, 1), 1.1),  # 7
], False)
sketch8.addConstraint([
    Sketcher.Constraint("Equal", 0, 1),
    Sketcher.Constraint("Equal", 1, 2),
    Sketcher.Constraint("Equal", 2, 3),
    Sketcher.Constraint("Equal", 3, 4),
    Sketcher.Constraint("Equal", 4, 5),
    Sketcher.Constraint("Equal", 5, 6),
    Sketcher.Constraint("Equal", 6, 7),
    Sketcher.Constraint("Symmetric", 0, 3, 4, 3, -1),
    Sketcher.Constraint("Symmetric", 2, 3, 5, 3, -1),
    Sketcher.Constraint("Symmetric", 3, 3, 6, 3, -1),
    Sketcher.Constraint("Symmetric", 1, 3, 7, 3, -1),
    Sketcher.Constraint("Horizontal", 0, 3, 1, 3),
    Sketcher.Constraint("Horizontal", 2, 3, 3, 3),
    Sketcher.Constraint("Vertical", 0, 3, 2, 3),
    Sketcher.Constraint("Vertical", 1, 3, 3, 3),
    Sketcher.Constraint("Diameter", 0, Q("2.2 mm")),
    Sketcher.Constraint("DistanceY", 0, 3, 2, 3, Q("21 mm")),
    Sketcher.Constraint("DistanceX", 1, 3, 0, 3, Q("12.5 mm")),
    Sketcher.Constraint("DistanceY", 4, 3, 0, 3, Q("41.5 mm")),
    Sketcher.Constraint("DistanceX", -1, 1, 0, 3, Q("2.569 mm")),
])
pad6 = doc.addObject("PartDesign::Pad", "Pad005")
body.addObject(pad6)
pad6.Profile = sketch8
pad6.Length = 5.05
pad6.Reversed = True

# Sketch on XY plane
sketch9 = doc.addObject("Sketcher::SketchObject", "Sketch008")
body.addObject(sketch9)
sketch9.AttachmentSupport = (doc.XY_Plane, [""])
sketch9.MapMode = "FlatFace"
sketch9.AttachmentOffset = App.Placement(V(0, 0, -3.05), App.Rotation())
sketch9.addGeometry([
    Part.Circle(V(2.6, -41.8, 0), V(0, 0, 1), 0.8),  # 0
    Part.Circle(V(-9.9, -41.8, 0), V(0, 0, 1), 0.8),  # 1
    Part.Circle(V(-9.9, -20.8, 0), V(0, 0, 1), 0.8),  # 2
    Part.Circle(V(2.6, -20.8, 0), V(0, 0, 1), 0.8),  # 3
    Part.Circle(V(2.6, 20.8, 0), V(0, 0, 1), 0.8),  # 4
    Part.Circle(V(-9.9, 20.8, 0), V(0, 0, 1), 0.8),  # 5
    Part.Circle(V(-9.9, 41.8, 0), V(0, 0, 1), 0.8),  # 6
    Part.Circle(V(2.6, 41.8, 0), V(0, 0, 1), 0.8),  # 7
], False)
sketch9.addConstraint([
    Sketcher.Constraint("Equal", 0, 1),
    Sketcher.Constraint("Equal", 1, 2),
    Sketcher.Constraint("Equal", 2, 3),
    Sketcher.Constraint("Equal", 3, 4),
    Sketcher.Constraint("Equal", 4, 5),
    Sketcher.Constraint("Equal", 5, 6),
    Sketcher.Constraint("Equal", 6, 7),
    Sketcher.Constraint("Symmetric", 3, 3, 4, 3, -1),
    Sketcher.Constraint("Symmetric", 2, 3, 5, 3, -1),
    Sketcher.Constraint("Symmetric", 1, 3, 6, 3, -1),
    Sketcher.Constraint("Symmetric", 0, 3, 7, 3, -1),
    Sketcher.Constraint("Horizontal", 0, 3, 1, 3),
    Sketcher.Constraint("Horizontal", 2, 3, 3, 3),
    Sketcher.Constraint("Vertical", 1, 3, 2, 3),
    Sketcher.Constraint("Vertical", 0, 3, 3, 3),
    Sketcher.Constraint("Diameter", 0, Q("1.6 mm")),
    Sketcher.Constraint("DistanceY", 1, 3, 2, 3, Q("21 mm")),
    Sketcher.Constraint("DistanceX", 1, 3, 0, 3, Q("12.5 mm")),
    Sketcher.Constraint("DistanceY", 3, 3, 4, 3, Q("41.5 mm")),
    Sketcher.Constraint("DistanceX", -1, 1, 0, 3, Q("2.569 mm")),
])
pad7 = doc.addObject("PartDesign::Pad", "Pad006")
body.addObject(pad7)
pad7.Profile = sketch9
pad7.Length = 1
pad7.Reversed = True

# Sketch on XY plane
sketch10 = doc.addObject("Sketcher::SketchObject", "Sketch009")
body.addObject(sketch10)
sketch10.AttachmentSupport = (doc.XY_Plane, [""])
sketch10.MapMode = "FlatFace"
sketch10.AttachmentOffset = App.Placement(V(0, 0, 2), App.Rotation())
sketch10.addGeometry([
    Part.LineSegment(V(-14.9, 53.8, 0), V(-14.9, -53.8, 0)),  # 0
    Part.LineSegment(V(-14.9, -53.8, 0), V(14.9, -53.8, 0)),  # 1
    Part.LineSegment(V(14.9, -53.8, 0), V(14.9, 53.8, 0)),  # 2
    Part.LineSegment(V(14.9, 53.8, 0), V(-14.9, 53.8, 0)),  # 3
    Part.Circle(V(-9.9, -50.2, 0), V(0, 0, 1), 1.4),  # 4
    Part.Circle(V(2.5, -50.2, 0), V(0, 0, 1), 1.4),  # 5
    Part.Circle(V(-9.9, 50.2, 0), V(0, 0, 1), 1.4),  # 6
    Part.LineSegment(V(-12.4, -44.2, 0), V(-12.4, 44.2, 0)),  # 7
    Part.LineSegment(V(-12.4, 44.2, 0), V(12.4, 44.2, 0)),  # 8
    Part.LineSegment(V(12.4, 44.2, 0), V(12.4, -44.2, 0)),  # 9
    Part.LineSegment(V(12.4, -44.2, 0), V(-12.4, -44.2, 0)),  # 10
    Part.Circle(V(2.5, 50.2, 0), V(0, 0, 1), 1.4),  # 11
], False)
sketch10.addConstraint([
    Sketcher.Constraint("Coincident", 0, 2, 1, 1),
    Sketcher.Constraint("Coincident", 1, 2, 2, 1),
    Sketcher.Constraint("Coincident", 2, 2, 3, 1),
    Sketcher.Constraint("Coincident", 3, 2, 0, 1),
    Sketcher.Constraint("Coincident", 7, 2, 8, 1),
    Sketcher.Constraint("Coincident", 8, 2, 9, 1),
    Sketcher.Constraint("Coincident", 9, 2, 10, 1),
    Sketcher.Constraint("Coincident", 10, 2, 7, 1),
    Sketcher.Constraint("Vertical", 0),
    Sketcher.Constraint("Horizontal", 1),
    Sketcher.Constraint("Vertical", 2),
    Sketcher.Constraint("Horizontal", 3),
    Sketcher.Constraint("Vertical", 7),
    Sketcher.Constraint("Horizontal", 8),
    Sketcher.Constraint("Vertical", 9),
    Sketcher.Constraint("Horizontal", 10),
    Sketcher.Constraint("Equal", 4, 5),
    Sketcher.Constraint("Equal", 5, 6),
    Sketcher.Constraint("Equal", 6, 11),
    Sketcher.Constraint("Symmetric", 0, 2, 2, 2, -1, 1),
    Sketcher.Constraint("Symmetric", 7, 2, 9, 2, -1, 1),
    Sketcher.Constraint("Symmetric", 4, 3, 6, 3, -1),
    Sketcher.Constraint("Symmetric", 5, 3, 11, 3, -1),
    Sketcher.Constraint("Horizontal", 4, 3, 5, 3),
    Sketcher.Constraint("Diameter", 4, Q("2.9 mm")),
    Sketcher.Constraint("DistanceY", 0, 2, 0, 1, Q("107.5 mm")),
    Sketcher.Constraint("DistanceY", 7, 1, 7, 2, Q("88.5 mm")),
    Sketcher.Constraint("DistanceX", 0, 2, 4, 3, Q("5 mm")),
    Sketcher.Constraint("DistanceY", 0, 2, 6, 3, Q("104 mm")),
    Sketcher.Constraint("DistanceX", 7, 2, 6, 3, Q("2.5 mm")),
    Sketcher.Constraint("DistanceX", 1, 1, 1, 2, Q("29.862 mm")),
    Sketcher.Constraint("DistanceX", -1, 1, 5, 3, Q("2.473 mm")),
])
pad8 = doc.addObject("PartDesign::Pad", "Pad007")
body.addObject(pad8)
pad8.Profile = sketch10
pad8.Length = 5.05
pad8.Reversed = True

doc.recompute()
